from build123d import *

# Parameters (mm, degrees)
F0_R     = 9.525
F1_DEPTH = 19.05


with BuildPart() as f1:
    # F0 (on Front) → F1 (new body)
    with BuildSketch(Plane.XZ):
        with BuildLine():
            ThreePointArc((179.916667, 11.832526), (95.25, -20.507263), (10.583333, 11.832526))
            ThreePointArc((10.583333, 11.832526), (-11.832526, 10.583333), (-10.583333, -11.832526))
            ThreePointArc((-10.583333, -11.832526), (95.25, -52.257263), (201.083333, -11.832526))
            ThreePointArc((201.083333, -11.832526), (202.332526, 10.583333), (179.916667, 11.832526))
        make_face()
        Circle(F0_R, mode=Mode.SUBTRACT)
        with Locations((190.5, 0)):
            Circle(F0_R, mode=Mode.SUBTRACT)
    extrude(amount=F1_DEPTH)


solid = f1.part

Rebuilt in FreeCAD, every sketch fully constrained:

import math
import FreeCAD as App
import Part
import Sketcher
from FreeCAD import Vector
Q = App.Units.Quantity

doc = App.newDocument("Part")
body = doc.addObject("PartDesign::Body", "Body")

sketch1 = doc.addObject("Sketcher::SketchObject", "Sketch")
body.addObject(sketch1)
sketch1.AttachmentSupport = (doc.XZ_Plane, [""])
sketch1.MapMode = "FlatFace"
sketch1.addGeometry([
    Part.ArcOfCircle(Part.Circle(Vector(95, 106, 0), Vector(0, 0, 1), 127), math.radians(-132), math.radians(-48)),
    Part.ArcOfCircle(Part.Circle(Vector(0, 0, 0), Vector(0, 0, 1), 16), math.radians(48), math.radians(228)),
    Part.ArcOfCircle(Part.Circle(Vector(95, 106, 0), Vector(0, 0, 1), 159), math.radians(-132), math.radians(-48)),
    Part.ArcOfCircle(Part.Circle(Vector(190, 0, 0), Vector(0, 0, 1), 16), math.radians(-48), math.radians(132)),
    Part.Circle(Vector(0, 0, 0), Vector(0, 0, 1), 10),
    Part.Circle(Vector(190, 0, 0), Vector(0, 0, 1), 10),
], False)
sketch1.addConstraint([
    Sketcher.Constraint("Tangent", 0, 1, 1, 1),
    Sketcher.Constraint("Tangent", 1, 2, 2, 1),
    Sketcher.Constraint("Tangent", 2, 2, 3, 1),
    Sketcher.Constraint("Tangent", 3, 2, 0, 2),
    Sketcher.Constraint("Coincident", 1, 3, -1, 1),
    Sketcher.Constraint("Coincident", 4, 3, -1, 1),
    Sketcher.Constraint("Coincident", 2, 3, 0, 3),
    Sketcher.Constraint("Coincident", 5, 3, 3, 3),
    Sketcher.Constraint("Equal", 4, 5),
    Sketcher.Constraint("PointOnObject", 3, 3, -1),
    Sketcher.Constraint("Radius", 0, Q("5 in")),
    Sketcher.Constraint("Diameter", 4, Q("0.75 in")),
    Sketcher.Constraint("Radius", 2, Q("6.2499999 in")),
    Sketcher.Constraint("DistanceX", -1, 1, 3, 3, Q("7.5 in")),
])
pad1 = doc.addObject("PartDesign::Pad", "Pad")
body.addObject(pad1)
pad1.Profile = sketch1
pad1.Length = Q("0.75 in")

doc.recompute()
